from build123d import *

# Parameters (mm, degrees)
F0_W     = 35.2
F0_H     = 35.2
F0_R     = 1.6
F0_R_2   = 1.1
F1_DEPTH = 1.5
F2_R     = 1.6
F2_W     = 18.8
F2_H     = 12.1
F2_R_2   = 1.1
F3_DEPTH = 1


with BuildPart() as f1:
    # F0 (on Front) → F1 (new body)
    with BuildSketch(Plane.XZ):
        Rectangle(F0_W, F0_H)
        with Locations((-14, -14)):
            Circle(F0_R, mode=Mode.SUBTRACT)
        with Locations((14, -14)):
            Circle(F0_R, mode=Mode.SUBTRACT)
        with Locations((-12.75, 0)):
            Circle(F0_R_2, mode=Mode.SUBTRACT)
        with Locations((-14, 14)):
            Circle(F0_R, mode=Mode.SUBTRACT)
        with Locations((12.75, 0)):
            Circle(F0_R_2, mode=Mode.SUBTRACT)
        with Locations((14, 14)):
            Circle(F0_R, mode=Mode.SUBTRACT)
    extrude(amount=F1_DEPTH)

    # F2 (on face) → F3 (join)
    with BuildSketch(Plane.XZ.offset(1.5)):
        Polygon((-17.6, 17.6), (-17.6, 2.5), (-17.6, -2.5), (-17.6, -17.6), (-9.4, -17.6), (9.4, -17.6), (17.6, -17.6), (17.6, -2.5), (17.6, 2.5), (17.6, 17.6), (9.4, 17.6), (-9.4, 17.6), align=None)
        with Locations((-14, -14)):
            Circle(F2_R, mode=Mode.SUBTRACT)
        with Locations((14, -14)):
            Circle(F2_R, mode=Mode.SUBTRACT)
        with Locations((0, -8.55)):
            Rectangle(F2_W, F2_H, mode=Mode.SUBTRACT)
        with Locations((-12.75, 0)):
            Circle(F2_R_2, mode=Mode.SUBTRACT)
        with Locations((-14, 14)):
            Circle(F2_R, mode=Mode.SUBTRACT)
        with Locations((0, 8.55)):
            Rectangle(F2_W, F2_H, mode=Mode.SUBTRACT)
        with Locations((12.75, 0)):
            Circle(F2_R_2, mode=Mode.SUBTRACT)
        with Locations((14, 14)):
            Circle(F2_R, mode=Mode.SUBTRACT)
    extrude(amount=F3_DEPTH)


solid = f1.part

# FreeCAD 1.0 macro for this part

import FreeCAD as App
import Part
import Sketcher

V = App.Vector
Q = App.Units.Quantity


def add_polygon(sketch, points):
    """Adds a closed chain of lines whose ends are joined by coincident constraints."""
    first, n = sketch.GeometryCount, len(points)
    for a, b in zip(points, points[1:] + points[:1]):
        sketch.addGeometry(Part.LineSegment(App.Vector(*a, 0), App.Vector(*b, 0)), False)
    for i in range(n):
        sketch.addConstraint(Sketcher.Constraint("Coincident", first + i, 2, first + (i + 1) % n, 1))

doc = App.newDocument("Part")
params = doc.addObject("Spreadsheet::Sheet", "Params")
for row, (alias, value) in enumerate([
    ("sketch1_diameter", "3.2 mm"),
    ("sketch1_diameter2", "2.2 mm"),
    ("sketch1_width", "35.2 mm"),
    ("pad1_length", "1.5 mm"),
    ("sketch2_diameter", "3.2 mm"),
    ("sketch2_diameter2", "2.2 mm"),
    ("sketch2_width", "35.2 mm"),
    ("sketch2_width2", "18.8 mm"),
    ("sketch2_height", "12.1 mm"),
    ("pad2_length", "1 mm"),
], start=1):
    params.set(f"A{row}", alias)
    params.set(f"B{row}", "=" + value)
    params.setAlias(f"B{row}", alias)

body = doc.addObject("PartDesign::Body", "Body")

sketch1 = body.newObject("Sketcher::SketchObject", "Sketch")
sketch1.AttachmentSupport = (doc.getObject("XZ_Plane"), [""])
sketch1.MapMode = "FlatFace"
add_polygon(sketch1, [(-17.6, 17.6), (-17.6, -17.6), (17.6, -17.6), (17.6, 17.6)])
sketch1.addGeometry(Part.Circle(V(-14, -14, 0), V(0, 0, 1), 1.6), False)
sketch1.addGeometry(Part.Circle(V(14, -14, 0), V(0, 0, 1), 1.6), False)
sketch1.addGeometry(Part.Circle(V(-12.8, 0, 0), V(0, 0, 1), 1.1), False)
sketch1.addGeometry(Part.Circle(V(-14, 14, 0), V(0, 0, 1), 1.6), False)
sketch1.addGeometry(Part.Circle(V(12.8, 0, 0), V(0, 0, 1), 1.1), False)
sketch1.addGeometry(Part.Circle(V(14, 14, 0), V(0, 0, 1), 1.6), False)
sketch1.addConstraint(Sketcher.Constraint("Vertical", 0))
sketch1.addConstraint(Sketcher.Constraint("Horizontal", 1))
sketch1.addConstraint(Sketcher.Constraint("Vertical", 2))
sketch1.addConstraint(Sketcher.Constraint("Horizontal", 3))
sketch1.addConstraint(Sketcher.Constraint("Equal", 4, 5))
sketch1.addConstraint(Sketcher.Constraint("Equal", 5, 7))
sketch1.addConstraint(Sketcher.Constraint("Equal", 6, 8))
sketch1.addConstraint(Sketcher.Constraint("Equal", 7, 9))
sketch1.addConstraint(Sketcher.Constraint("Symmetric", 5, 3, 7, 3, -1, 1))
sketch1.addConstraint(Sketcher.Constraint("Symmetric", 6, 3, 8, 3, -1, 1))
sketch1.addConstraint(Sketcher.Constraint("Symmetric", 4, 3, 9, 3, -1, 1))
sketch1.addConstraint(Sketcher.Constraint("Symmetric", 0, 2, 2, 2, -1, 1))
sketch1.addConstraint(Sketcher.Constraint("Symmetric", 4, 3, 5, 3, -2))
sketch1.addConstraint(Sketcher.Constraint("PointOnObject", 6, 3, -1))
sketch1.addConstraint(Sketcher.Constraint("Equal", 3, 0))
sketch1.addConstraint(Sketcher.Constraint("Diameter", 4, Q("3.2 mm")))
sketch1.addConstraint(Sketcher.Constraint("Diameter", 6, Q("2.2 mm")))
sketch1.addConstraint(Sketcher.Constraint("DistanceX", 1, 1, 1, 2, Q("35.2 mm")))
sketch1.addConstraint(Sketcher.Constraint("DistanceX", 4, 3, -1, 1, Q("14 mm")))
sketch1.addConstraint(Sketcher.Constraint("DistanceY", 4, 3, -1, 1, Q("14 mm")))
sketch1.addConstraint(Sketcher.Constraint("DistanceX", 6, 3, 8, 3, Q("25.5 mm")))
sketch1.setExpression("Constraints[19]", "Params.sketch1_diameter")
sketch1.setExpression("Constraints[20]", "Params.sketch1_diameter2")
sketch1.setExpression("Constraints[21]", "Params.sketch1_width")
pad1 = body.newObject("PartDesign::Pad", "Pad")
pad1.Profile = sketch1
pad1.setExpression("Length", "Params.pad1_length")

sketch2 = body.newObject("Sketcher::SketchObject", "Sketch001")
sketch2.AttachmentSupport = (doc.getObject("XZ_Plane"), [""])
sketch2.MapMode = "FlatFace"
sketch2.AttachmentOffset = App.Placement(V(0, 0, 1.5), App.Rotation())
add_polygon(sketch2, [(-17.6, 17.6), (-17.6, -17.6), (17.6, -17.6), (17.6, 17.6)])
sketch2.addGeometry(Part.Circle(V(-14, -14, 0), V(0, 0, 1), 1.6), False)
add_polygon(sketch2, [(9.4, -14.6), (-9.4, -14.6), (-9.4, -2.5), (9.4, -2.5)])
sketch2.addGeometry(Part.Circle(V(14, -14, 0), V(0, 0, 1), 1.6), False)
sketch2.addGeometry(Part.Circle(V(-12.8, 0, 0), V(0, 0, 1), 1.1), False)
sketch2.addGeometry(Part.Circle(V(-14, 14, 0), V(0, 0, 1), 1.6), False)
sketch2.addGeometry(Part.Circle(V(12.8, 0, 0), V(0, 0, 1), 1.1), False)
add_polygon(sketch2, [(9.4, 2.5), (-9.4, 2.5), (-9.4, 14.6), (9.4, 14.6)])
sketch2.addGeometry(Part.Circle(V(14, 14, 0), V(0, 0, 1), 1.6), False)
sketch2.addConstraint(Sketcher.Constraint("Vertical", 0))
sketch2.addConstraint(Sketcher.Constraint("Horizontal", 1))
sketch2.addConstraint(Sketcher.Constraint("Vertical", 2))
sketch2.addConstraint(Sketcher.Constraint("Horizontal", 3))
sketch2.addConstraint(Sketcher.Constraint("Horizontal", 5))
sketch2.addConstraint(Sketcher.Constraint("Vertical", 6))
sketch2.addConstraint(Sketcher.Constraint("Horizontal", 7))
sketch2.addConstraint(Sketcher.Constraint("Vertical", 8))
sketch2.addConstraint(Sketcher.Constraint("Horizontal", 13))
sketch2.addConstraint(Sketcher.Constraint("Vertical", 14))
sketch2.addConstraint(Sketcher.Constraint("Horizontal", 15))
sketch2.addConstraint(Sketcher.Constraint("Vertical", 16))
sketch2.addConstraint(Sketcher.Constraint("Equal", 4, 9))
sketch2.addConstraint(Sketcher.Constraint("Equal", 9, 11))
sketch2.addConstraint(Sketcher.Constraint("Equal", 10, 12))
sketch2.addConstraint(Sketcher.Constraint("Equal", 11, 17))
sketch2.addConstraint(Sketcher.Constraint("Symmetric", 9, 3, 11, 3, -1, 1))
sketch2.addConstraint(Sketcher.Constraint("Symmetric", 10, 3, 12, 3, -1, 1))
sketch2.addConstraint(Sketcher.Constraint("Symmetric", 4, 3, 17, 3, -1, 1))
sketch2.addConstraint(Sketcher.Constraint("Symmetric", 0, 2, 2, 2, -1, 1))
sketch2.addConstraint(Sketcher.Constraint("Symmetric", 7, 2, 13, 2, -1, 1))
sketch2.addConstraint(Sketcher.Constraint("Symmetric", 5, 2, 15, 2, -1, 1))
sketch2.addConstraint(Sketcher.Constraint("Symmetric", 4, 3, 9, 3, -2))
sketch2.addConstraint(Sketcher.Constraint("PointOnObject", 10, 3, -1))
sketch2.addConstraint(Sketcher.Constraint("Vertical", 6, 2, 13, 2))
sketch2.addConstraint(Sketcher.Constraint("Equal", 3, 0))
sketch2.addConstraint(Sketcher.Constraint("Diameter", 4, Q("3.2 mm")))
sketch2.addConstraint(Sketcher.Constraint("Diameter", 10, Q("2.2 mm")))
sketch2.addConstraint(Sketcher.Constraint("DistanceX", 1, 1, 1, 2, Q("35.2 mm")))
sketch2.addConstraint(Sketcher.Constraint("DistanceX", 5, 2, 5, 1, Q("18.8 mm")))
sketch2.addConstraint(Sketcher.Constraint("DistanceY", 6, 1, 6, 2, Q("12.1 mm")))
sketch2.addConstraint(Sketcher.Constraint("DistanceX", 4, 3, -1, 1, Q("14 mm")))
sketch2.addConstraint(Sketcher.Constraint("DistanceY", 4, 3, -1, 1, Q("14 mm")))
sketch2.addConstraint(Sketcher.Constraint("DistanceY", 0, 2, 5, 2, Q("3 mm")))
sketch2.addConstraint(Sketcher.Constraint("DistanceX", 10, 3, 12, 3, Q("25.5 mm")))
sketch2.setExpression("Constraints[38]", "Params.sketch2_diameter")
sketch2.setExpression("Constraints[39]", "Params.sketch2_diameter2")
sketch2.setExpression("Constraints[40]", "Params.sketch2_width")
sketch2.setExpression("Constraints[41]", "Params.sketch2_width2")
sketch2.setExpression("Constraints[42]", "Params.sketch2_height")
pad2 = body.newObject("PartDesign::Pad", "Pad001")
pad2.Profile = sketch2
pad2.setExpression("Length", "Params.pad2_length")

doc.recompute()
